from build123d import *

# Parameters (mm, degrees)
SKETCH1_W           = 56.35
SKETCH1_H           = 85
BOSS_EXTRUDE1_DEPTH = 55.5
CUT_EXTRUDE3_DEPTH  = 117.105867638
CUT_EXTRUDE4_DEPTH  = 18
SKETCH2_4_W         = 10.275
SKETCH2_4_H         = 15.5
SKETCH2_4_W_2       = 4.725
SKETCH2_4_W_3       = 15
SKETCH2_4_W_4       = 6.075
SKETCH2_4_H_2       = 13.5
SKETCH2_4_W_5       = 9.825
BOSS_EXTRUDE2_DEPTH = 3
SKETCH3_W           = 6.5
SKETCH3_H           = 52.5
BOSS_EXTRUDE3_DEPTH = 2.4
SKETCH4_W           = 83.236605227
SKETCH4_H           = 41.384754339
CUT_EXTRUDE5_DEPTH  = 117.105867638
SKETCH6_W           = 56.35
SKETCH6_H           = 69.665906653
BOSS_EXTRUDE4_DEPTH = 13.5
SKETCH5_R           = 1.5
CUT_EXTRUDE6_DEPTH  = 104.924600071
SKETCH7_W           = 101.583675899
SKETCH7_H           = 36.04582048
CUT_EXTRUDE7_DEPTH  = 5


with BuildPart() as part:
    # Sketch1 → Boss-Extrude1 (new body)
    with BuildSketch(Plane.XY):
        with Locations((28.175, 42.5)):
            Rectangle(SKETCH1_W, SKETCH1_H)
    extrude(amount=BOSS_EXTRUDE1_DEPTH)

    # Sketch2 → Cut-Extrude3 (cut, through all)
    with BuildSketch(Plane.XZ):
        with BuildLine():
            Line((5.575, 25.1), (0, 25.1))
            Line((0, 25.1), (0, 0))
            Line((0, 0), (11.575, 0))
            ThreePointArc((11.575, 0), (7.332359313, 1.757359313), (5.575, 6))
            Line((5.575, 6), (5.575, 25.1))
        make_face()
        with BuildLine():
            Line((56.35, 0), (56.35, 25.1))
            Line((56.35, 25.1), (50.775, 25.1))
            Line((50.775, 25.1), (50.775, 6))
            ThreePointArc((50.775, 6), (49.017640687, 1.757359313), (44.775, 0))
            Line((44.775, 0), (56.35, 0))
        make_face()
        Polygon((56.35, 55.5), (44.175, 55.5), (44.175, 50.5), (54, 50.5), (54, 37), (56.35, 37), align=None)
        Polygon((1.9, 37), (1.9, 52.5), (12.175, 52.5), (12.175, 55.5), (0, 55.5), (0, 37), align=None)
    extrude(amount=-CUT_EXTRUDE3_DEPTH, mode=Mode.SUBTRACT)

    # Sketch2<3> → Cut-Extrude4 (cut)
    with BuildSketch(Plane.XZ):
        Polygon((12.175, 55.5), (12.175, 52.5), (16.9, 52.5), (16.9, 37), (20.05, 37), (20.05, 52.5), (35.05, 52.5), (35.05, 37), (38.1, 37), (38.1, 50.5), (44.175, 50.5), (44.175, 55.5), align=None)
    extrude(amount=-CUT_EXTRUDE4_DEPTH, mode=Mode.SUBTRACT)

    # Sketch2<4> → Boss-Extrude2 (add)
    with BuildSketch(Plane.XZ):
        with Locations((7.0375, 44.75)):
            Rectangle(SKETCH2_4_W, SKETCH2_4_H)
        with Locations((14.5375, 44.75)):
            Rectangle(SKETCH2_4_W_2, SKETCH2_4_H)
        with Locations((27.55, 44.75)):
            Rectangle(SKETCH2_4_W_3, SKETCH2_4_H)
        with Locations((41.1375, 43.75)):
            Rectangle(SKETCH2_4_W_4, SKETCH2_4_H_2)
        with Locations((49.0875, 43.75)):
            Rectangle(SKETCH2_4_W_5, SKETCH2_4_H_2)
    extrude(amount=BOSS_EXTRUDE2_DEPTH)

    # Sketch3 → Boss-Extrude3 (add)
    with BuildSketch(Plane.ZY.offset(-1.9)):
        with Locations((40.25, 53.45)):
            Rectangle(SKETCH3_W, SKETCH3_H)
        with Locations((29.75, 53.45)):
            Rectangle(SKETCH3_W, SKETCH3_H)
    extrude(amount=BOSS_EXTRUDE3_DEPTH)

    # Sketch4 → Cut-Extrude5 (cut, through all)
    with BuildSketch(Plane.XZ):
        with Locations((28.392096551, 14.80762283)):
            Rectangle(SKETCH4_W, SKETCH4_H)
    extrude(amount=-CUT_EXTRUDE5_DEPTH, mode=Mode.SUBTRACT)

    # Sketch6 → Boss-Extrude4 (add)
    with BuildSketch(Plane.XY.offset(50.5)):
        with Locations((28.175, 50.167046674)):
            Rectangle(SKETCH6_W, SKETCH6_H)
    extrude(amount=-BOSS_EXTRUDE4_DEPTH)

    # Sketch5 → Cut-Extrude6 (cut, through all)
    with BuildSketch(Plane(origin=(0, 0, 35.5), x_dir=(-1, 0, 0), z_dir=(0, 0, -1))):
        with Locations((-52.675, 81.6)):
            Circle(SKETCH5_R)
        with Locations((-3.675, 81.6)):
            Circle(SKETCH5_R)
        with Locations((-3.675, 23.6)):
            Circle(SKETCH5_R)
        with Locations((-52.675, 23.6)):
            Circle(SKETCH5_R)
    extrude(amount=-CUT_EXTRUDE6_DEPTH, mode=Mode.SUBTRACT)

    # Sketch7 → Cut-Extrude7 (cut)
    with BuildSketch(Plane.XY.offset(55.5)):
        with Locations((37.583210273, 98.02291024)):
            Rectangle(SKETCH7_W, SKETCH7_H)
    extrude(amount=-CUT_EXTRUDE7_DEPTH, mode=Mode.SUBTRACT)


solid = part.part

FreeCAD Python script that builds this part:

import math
import FreeCAD as App
import Part
import Sketcher
from FreeCAD import Vector
Q = App.Units.Quantity


def add_polygon(sketch, points):
    """Adds a closed chain of lines whose ends are joined by coincident constraints."""
    first, n = sketch.GeometryCount, len(points)
    for a, b in zip(points, points[1:] + points[:1]):
        sketch.addGeometry(Part.LineSegment(App.Vector(*a, 0), App.Vector(*b, 0)), False)
    for i in range(n):
        sketch.addConstraint(Sketcher.Constraint("Coincident", first + i, 2, first + (i + 1) % n, 1))

doc = App.newDocument("Part")
body = doc.addObject("PartDesign::Body", "Body")

# Sketch on XY plane
sketch1 = body.newObject("Sketcher::SketchObject", "Sketch")
sketch1.AttachmentSupport = (doc.getObject("XY_Plane"), [""])
sketch1.MapMode = "FlatFace"
add_polygon(sketch1, [(0, 85), (0, 0), (56.35, 0), (56.35, 85)])  # lines 0-3
sketch1.addConstraint([
    Sketcher.Constraint("Vertical", 0),
    Sketcher.Constraint("Horizontal", 1),
    Sketcher.Constraint("Vertical", 2),
    Sketcher.Constraint("Horizontal", 3),
    Sketcher.Constraint("Coincident", 0, 2, -1, 1),
    Sketcher.Constraint("DistanceY", 0, 2, 0, 1, Q("85 mm")),
    Sketcher.Constraint("DistanceX", 1, 1, 1, 2, Q("56.35 mm")),
])
pad1 = body.newObject("PartDesign::Pad", "Pad")
pad1.Profile = sketch1
pad1.Length = 55.5

# Sketch on XZ plane
sketch2 = body.newObject("Sketcher::SketchObject", "Sketch001")
sketch2.AttachmentSupport = (doc.getObject("XZ_Plane"), [""])
sketch2.MapMode = "FlatFace"
sketch2.addGeometry(Part.LineSegment(Vector(5.575, 25.1, 0), Vector(0, 25.1, 0)), False)  # 0
sketch2.addGeometry(Part.LineSegment(Vector(0, 25.1, 0), Vector(0, 0, 0)), False)  # 1
sketch2.addGeometry(Part.LineSegment(Vector(0, 0, 0), Vector(11.575, 0, 0)), False)  # 2
sketch2.addGeometry(Part.ArcOfCircle(Part.Circle(Vector(11.575, 6, 0), Vector(0, 0, 1), 6), math.radians(180), math.radians(270)), False)  # 3
sketch2.addGeometry(Part.LineSegment(Vector(5.575, 6, 0), Vector(5.575, 25.1, 0)), False)  # 4
sketch2.addGeometry(Part.LineSegment(Vector(56.35, 0, 0), Vector(56.35, 25.1, 0)), False)  # 5
sketch2.addGeometry(Part.LineSegment(Vector(56.35, 25.1, 0), Vector(50.775, 25.1, 0)), False)  # 6
sketch2.addGeometry(Part.LineSegment(Vector(50.775, 25.1, 0), Vector(50.775, 6, 0)), False)  # 7
sketch2.addGeometry(Part.ArcOfCircle(Part.Circle(Vector(44.775, 6, 0), Vector(0, 0, 1), 6), math.radians(-90), math.radians(0)), False)  # 8
sketch2.addGeometry(Part.LineSegment(Vector(44.775, 0, 0), Vector(56.35, 0, 0)), False)  # 9
add_polygon(sketch2, [(56.35, 55.5), (44.175, 55.5), (44.175, 50.5), (54, 50.5), (54, 37), (56.35, 37)])  # lines 10-15
add_polygon(sketch2, [(1.9, 37), (1.9, 52.5), (12.175, 52.5), (12.175, 55.5), (0, 55.5), (0, 37)])  # lines 16-21
sketch2.addConstraint([
    Sketcher.Constraint("Coincident", 0, 2, 1, 1),
    Sketcher.Constraint("Coincident", 1, 2, 2, 1),
    Sketcher.Constraint("Tangent", 2, 2, 3, 2),
    Sketcher.Constraint("Tangent", 3, 1, 4, 1),
    Sketcher.Constraint("Coincident", 4, 2, 0, 1),
    Sketcher.Constraint("Coincident", 5, 2, 6, 1),
    Sketcher.Constraint("Coincident", 6, 2, 7, 1),
    Sketcher.Constraint("Tangent", 7, 2, 8, 2),
    Sketcher.Constraint("Tangent", 8, 1, 9, 1),
    Sketcher.Constraint("Coincident", 9, 2, 5, 1),
    Sketcher.Constraint("Horizontal", 0),
    Sketcher.Constraint("Vertical", 1),
    Sketcher.Constraint("Horizontal", 2),
    Sketcher.Constraint("Vertical", 4),
    Sketcher.Constraint("Vertical", 5),
    Sketcher.Constraint("Horizontal", 6),
    Sketcher.Constraint("Vertical", 7),
    Sketcher.Constraint("Horizontal", 9),
    Sketcher.Constraint("Horizontal", 10),
    Sketcher.Constraint("Vertical", 11),
    Sketcher.Constraint("Horizontal", 12),
    Sketcher.Constraint("Vertical", 13),
    Sketcher.Constraint("Horizontal", 14),
    Sketcher.Constraint("Vertical", 15),
    Sketcher.Constraint("Vertical", 16),
    Sketcher.Constraint("Horizontal", 17),
    Sketcher.Constraint("Vertical", 18),
    Sketcher.Constraint("Horizontal", 19),
    Sketcher.Constraint("Vertical", 20),
    Sketcher.Constraint("Horizontal", 21),
    Sketcher.Constraint("Coincident", 1, 2, -1, 1),
    Sketcher.Constraint("Equal", 3, 8),
    Sketcher.Constraint("PointOnObject", 8, 1, -1),
    Sketcher.Constraint("PointOnObject", 19, 2, -2),
    Sketcher.Constraint("Horizontal", 4, 2, 5, 2),
    Sketcher.Constraint("Horizontal", 15, 2, 18, 2),
    Sketcher.Constraint("Horizontal", 14, 2, 20, 2),
    Sketcher.Constraint("Vertical", 9, 2, 14, 2),
    Sketcher.Constraint("Equal", 0, 6),
    Sketcher.Constraint("Equal", 10, 19),
    Sketcher.Constraint("Radius", 3, Q("6 mm")),
    Sketcher.Constraint("DistanceY", 11, 2, 11, 1, Q("5 mm")),
    Sketcher.Constraint("DistanceY", 18, 1, 18, 2, Q("3 mm")),
    Sketcher.Constraint("DistanceX", 21, 1, 21, 2, Q("1.9 mm")),
    Sketcher.Constraint("DistanceY", 1, 2, 1, 1, Q("25.1 mm")),
    Sketcher.Constraint("DistanceY", 13, 2, 13, 1, Q("13.5 mm")),
    Sketcher.Constraint("DistanceX", -1, 1, 12, 2, Q("54 mm")),
    Sketcher.Constraint("DistanceY", -1, 1, 13, 2, Q("37 mm")),
    Sketcher.Constraint("DistanceX", 17, 2, 11, 2, Q("32 mm")),
    Sketcher.Constraint("DistanceX", 14, 1, 14, 2, Q("2.35 mm")),
    Sketcher.Constraint("DistanceX", 3, 3, 8, 3, Q("33.2 mm")),
])
pocket1 = body.newObject("PartDesign::Pocket", "Pocket")
pocket1.Profile = sketch2
pocket1.Type = "ThroughAll"

# Sketch on XZ plane
sketch3 = body.newObject("Sketcher::SketchObject", "Sketch002")
sketch3.AttachmentSupport = (doc.getObject("XZ_Plane"), [""])
sketch3.MapMode = "FlatFace"
add_polygon(sketch3, [(12.175, 55.5), (12.175, 52.5), (16.9, 52.5), (16.9, 37), (20.05, 37), (20.05, 52.5), (35.05, 52.5), (35.05, 37), (38.1, 37), (38.1, 50.5), (44.175, 50.5), (44.175, 55.5)])  # lines 0-11
sketch3.addConstraint([
    Sketcher.Constraint("Vertical", 0),
    Sketcher.Constraint("Horizontal", 1),
    Sketcher.Constraint("Vertical", 2),
    Sketcher.Constraint("Horizontal", 3),
    Sketcher.Constraint("Vertical", 4),
    Sketcher.Constraint("Horizontal", 5),
    Sketcher.Constraint("Vertical", 6),
    Sketcher.Constraint("Horizontal", 7),
    Sketcher.Constraint("Vertical", 8),
    Sketcher.Constraint("Horizontal", 9),
    Sketcher.Constraint("Vertical", 10),
    Sketcher.Constraint("Horizontal", 11),
    Sketcher.Constraint("Horizontal", 1, 2, 4, 2),
    Sketcher.Constraint("Horizontal", 3, 2, 6, 2),
    Sketcher.Constraint("DistanceX", 5, 1, 5, 2, Q("15 mm")),
    Sketcher.Constraint("DistanceX", 11, 2, 11, 1, Q("32 mm")),
    Sketcher.Constraint("DistanceY", 0, 2, 0, 1, Q("3 mm")),
    Sketcher.Constraint("DistanceY", 10, 1, 10, 2, Q("5 mm")),
    Sketcher.Constraint("DistanceY", 2, 2, 2, 1, Q("15.5 mm")),
    Sketcher.Constraint("DistanceY", -1, 1, 2, 2, Q("37 mm")),
    Sketcher.Constraint("DistanceX", 3, 1, 3, 2, Q("3.15 mm")),
    Sketcher.Constraint("DistanceX", 7, 1, 7, 2, Q("3.05 mm")),
    Sketcher.Constraint("DistanceX", -1, 1, 1, 2, Q("16.9 mm")),
    Sketcher.Constraint("DistanceX", 1, 1, 1, 2, Q("4.725 mm")),
])
pocket2 = body.newObject("PartDesign::Pocket", "Pocket001")
pocket2.Profile = sketch3
pocket2.Length = 18

# Sketch on XZ plane
sketch4 = body.newObject("Sketcher::SketchObject", "Sketch003")
sketch4.AttachmentSupport = (doc.getObject("XZ_Plane"), [""])
sketch4.MapMode = "FlatFace"
add_polygon(sketch4, [(1.9, 52.5), (1.9, 37), (16.9, 37), (16.9, 52.5)])  # lines 0-3
add_polygon(sketch4, [(20.05, 52.5), (20.05, 37), (35.05, 37), (35.05, 52.5)])  # lines 4-7
add_polygon(sketch4, [(38.1, 50.5), (38.1, 37), (54, 37), (54, 50.5)])  # lines 8-11
sketch4.addConstraint([
    Sketcher.Constraint("Vertical", 0),
    Sketcher.Constraint("Horizontal", 1),
    Sketcher.Constraint("Vertical", 2),
    Sketcher.Constraint("Horizontal", 3),
    Sketcher.Constraint("Vertical", 4),
    Sketcher.Constraint("Horizontal", 5),
    Sketcher.Constraint("Vertical", 6),
    Sketcher.Constraint("Horizontal", 7),
    Sketcher.Constraint("Vertical", 8),
    Sketcher.Constraint("Horizontal", 9),
    Sketcher.Constraint("Vertical", 10),
    Sketcher.Constraint("Horizontal", 11),
    Sketcher.Constraint("Horizontal", 1, 2, 4, 2),
    Sketcher.Constraint("Horizontal", 3, 2, 6, 2),
    Sketcher.Constraint("Horizontal", 5, 2, 8, 2),
    Sketcher.Constraint("Equal", 3, 5),
    Sketcher.Constraint("DistanceX", 1, 1, 1, 2, Q("15 mm")),
    Sketcher.Constraint("DistanceX", 9, 1, 9, 2, Q("15.9 mm")),
    Sketcher.Constraint("DistanceY", 0, 2, 0, 1, Q("15.5 mm")),
    Sketcher.Constraint("DistanceY", 8, 2, 8, 1, Q("13.5 mm")),
    Sketcher.Constraint("DistanceY", -1, 1, 0, 2, Q("37 mm")),
    Sketcher.Constraint("DistanceX", -1, 1, 9, 2, Q("54 mm")),
    Sketcher.Constraint("DistanceX", -1, 1, 0, 2, Q("1.9 mm")),
    Sketcher.Constraint("DistanceX", -1, 1, 4, 2, Q("20.05 mm")),
])
pad2 = body.newObject("PartDesign::Pad", "Pad001")
pad2.Profile = sketch4
pad2.Length = 3

# Sketch on YZ plane
sketch5 = body.newObject("Sketcher::SketchObject", "Sketch004")
sketch5.AttachmentSupport = (doc.getObject("YZ_Plane"), [""])
sketch5.MapMode = "FlatFace"
sketch5.AttachmentOffset = App.Placement(Vector(0, 0, 1.9), App.Rotation())
add_polygon(sketch5, [(79.7, 37), (27.2, 37), (27.2, 43.5), (79.7, 43.5)])  # lines 0-3
add_polygon(sketch5, [(79.7, 26.5), (27.2, 26.5), (27.2, 33), (79.7, 33)])  # lines 4-7
sketch5.addConstraint([
    Sketcher.Constraint("Horizontal", 0),
    Sketcher.Constraint("Vertical", 1),
    Sketcher.Constraint("Horizontal", 2),
    Sketcher.Constraint("Vertical", 3),
    Sketcher.Constraint("Horizontal", 4),
    Sketcher.Constraint("Vertical", 5),
    Sketcher.Constraint("Horizontal", 6),
    Sketcher.Constraint("Vertical", 7),
    Sketcher.Constraint("Vertical", 1, 2, 4, 2),
    Sketcher.Constraint("Vertical", 3, 2, 6, 2),
    Sketcher.Constraint("Equal", 3, 5),
    Sketcher.Constraint("DistanceX", 0, 2, 0, 1, Q("52.5 mm")),
    Sketcher.Constraint("DistanceY", 1, 1, 1, 2, Q("6.5 mm")),
    Sketcher.Constraint("DistanceY", -1, 1, 0, 2, Q("37 mm")),
    Sketcher.Constraint("DistanceY", -1, 1, 5, 2, Q("33 mm")),
    Sketcher.Constraint("DistanceX", -1, 1, 0, 2, Q("27.2 mm")),
])
pad3 = body.newObject("PartDesign::Pad", "Pad002")
pad3.Profile = sketch5
pad3.Length = 2.4
pad3.Reversed = True

# Sketch on XZ plane
sketch6 = body.newObject("Sketcher::SketchObject", "Sketch005")
sketch6.AttachmentSupport = (doc.getObject("XZ_Plane"), [""])
sketch6.MapMode = "FlatFace"
add_polygon(sketch6, [(-13.226206, 35.5), (-13.226206, -5.884754), (70.010399, -5.884754), (70.010399, 35.5)])  # lines 0-3
sketch6.addConstraint([
    Sketcher.Constraint("Vertical", 0),
    Sketcher.Constraint("Horizontal", 1),
    Sketcher.Constraint("Vertical", 2),
    Sketcher.Constraint("Horizontal", 3),
    Sketcher.Constraint("DistanceY", -1, 1, 2, 2, Q("35.5 mm")),
    Sketcher.Constraint("DistanceX", -1, 1, 1, 2, Q("70.010399 mm")),
    Sketcher.Constraint("DistanceX", 1, 1, 1, 2, Q("83.236605 mm")),
    Sketcher.Constraint("DistanceY", 0, 2, 0, 1, Q("41.384754 mm")),
])
pocket3 = body.newObject("PartDesign::Pocket", "Pocket002")
pocket3.Profile = sketch6
pocket3.Type = "ThroughAll"

# Sketch on XY plane
sketch7 = body.newObject("Sketcher::SketchObject", "Sketch006")
sketch7.AttachmentSupport = (doc.getObject("XY_Plane"), [""])
sketch7.MapMode = "FlatFace"
sketch7.AttachmentOffset = App.Placement(Vector(0, 0, 50.5), App.Rotation())
add_polygon(sketch7, [(0, 85), (0, 15.334093), (56.35, 15.334093), (56.35, 85)])  # lines 0-3
sketch7.addConstraint([
    Sketcher.Constraint("Vertical", 0),
    Sketcher.Constraint("Horizontal", 1),
    Sketcher.Constraint("Vertical", 2),
    Sketcher.Constraint("Horizontal", 3),
    Sketcher.Constraint("PointOnObject", 0, 2, -2),
    Sketcher.Constraint("DistanceY", -1, 1, 2, 2, Q("85 mm")),
    Sketcher.Constraint("DistanceX", 1, 1, 1, 2, Q("56.35 mm")),
    Sketcher.Constraint("DistanceY", 0, 2, 0, 1, Q("69.665907 mm")),
])
pad4 = body.newObject("PartDesign::Pad", "Pad003")
pad4.Profile = sketch7
pad4.Length = 13.5
pad4.Reversed = True

# Sketch on XY plane
sketch8 = body.newObject("Sketcher::SketchObject", "Sketch007")
sketch8.AttachmentSupport = (doc.getObject("XY_Plane"), [""])
sketch8.MapMode = "FlatFace"
sketch8.AttachmentOffset = App.Placement(Vector(0, 0, 35.5), App.Rotation())
sketch8.addGeometry([
    Part.Circle(Vector(52.675, 81.6, 0), Vector(0, 0, 1), 1.5),
    Part.Circle(Vector(3.675, 81.6, 0), Vector(0, 0, 1), 1.5),
    Part.Circle(Vector(3.675, 23.6, 0), Vector(0, 0, 1), 1.5),
    Part.Circle(Vector(52.675, 23.6, 0), Vector(0, 0, 1), 1.5),
], False)
sketch8.addConstraint([
    Sketcher.Constraint("Equal", 0, 1),
    Sketcher.Constraint("Equal", 1, 2),
    Sketcher.Constraint("Equal", 2, 3),
    Sketcher.Constraint("Horizontal", 0, 3, 1, 3),
    Sketcher.Constraint("Horizontal", 2, 3, 3, 3),
    Sketcher.Constraint("Vertical", 1, 3, 2, 3),
    Sketcher.Constraint("Vertical", 0, 3, 3, 3),
    Sketcher.Constraint("Diameter", 0, Q("3 mm")),
    Sketcher.Constraint("DistanceX", 1, 3, 0, 3, Q("49 mm")),
    Sketcher.Constraint("DistanceY", 2, 3, 1, 3, Q("58 mm")),
    Sketcher.Constraint("DistanceY", -1, 1, 0, 3, Q("81.6 mm")),
    Sketcher.Constraint("DistanceX", -1, 1, 0, 3, Q("52.675 mm")),
])
pocket4 = body.newObject("PartDesign::Pocket", "Pocket003")
pocket4.Profile = sketch8
pocket4.Type = "ThroughAll"
pocket4.Reversed = True

# Sketch on XY plane
sketch9 = body.newObject("Sketcher::SketchObject", "Sketch008")
sketch9.AttachmentSupport = (doc.getObject("XY_Plane"), [""])
sketch9.MapMode = "FlatFace"
sketch9.AttachmentOffset = App.Placement(Vector(0, 0, 55.5), App.Rotation())
add_polygon(sketch9, [(-13.208628, 116.04582), (-13.208628, 80), (88.375048, 80), (88.375048, 116.04582)])  # lines 0-3
sketch9.addConstraint([
    Sketcher.Constraint("Vertical", 0),
    Sketcher.Constraint("Horizontal", 1),
    Sketcher.Constraint("Vertical", 2),
    Sketcher.Constraint("Horizontal", 3),
    Sketcher.Constraint("DistanceY", -1, 1, 0, 2, Q("80 mm")),
    Sketcher.Constraint("DistanceY", 0, 2, 0, 1, Q("36.04582 mm")),
    Sketcher.Constraint("DistanceX", 1, 1, 1, 2, Q("101.583676 mm")),
    Sketcher.Constraint("DistanceX", -1, 1, 1, 2, Q("88.375048 mm")),
])
pocket5 = body.newObject("PartDesign::Pocket", "Pocket004")
pocket5.Profile = sketch9
pocket5.Length = 5

doc.recompute()
